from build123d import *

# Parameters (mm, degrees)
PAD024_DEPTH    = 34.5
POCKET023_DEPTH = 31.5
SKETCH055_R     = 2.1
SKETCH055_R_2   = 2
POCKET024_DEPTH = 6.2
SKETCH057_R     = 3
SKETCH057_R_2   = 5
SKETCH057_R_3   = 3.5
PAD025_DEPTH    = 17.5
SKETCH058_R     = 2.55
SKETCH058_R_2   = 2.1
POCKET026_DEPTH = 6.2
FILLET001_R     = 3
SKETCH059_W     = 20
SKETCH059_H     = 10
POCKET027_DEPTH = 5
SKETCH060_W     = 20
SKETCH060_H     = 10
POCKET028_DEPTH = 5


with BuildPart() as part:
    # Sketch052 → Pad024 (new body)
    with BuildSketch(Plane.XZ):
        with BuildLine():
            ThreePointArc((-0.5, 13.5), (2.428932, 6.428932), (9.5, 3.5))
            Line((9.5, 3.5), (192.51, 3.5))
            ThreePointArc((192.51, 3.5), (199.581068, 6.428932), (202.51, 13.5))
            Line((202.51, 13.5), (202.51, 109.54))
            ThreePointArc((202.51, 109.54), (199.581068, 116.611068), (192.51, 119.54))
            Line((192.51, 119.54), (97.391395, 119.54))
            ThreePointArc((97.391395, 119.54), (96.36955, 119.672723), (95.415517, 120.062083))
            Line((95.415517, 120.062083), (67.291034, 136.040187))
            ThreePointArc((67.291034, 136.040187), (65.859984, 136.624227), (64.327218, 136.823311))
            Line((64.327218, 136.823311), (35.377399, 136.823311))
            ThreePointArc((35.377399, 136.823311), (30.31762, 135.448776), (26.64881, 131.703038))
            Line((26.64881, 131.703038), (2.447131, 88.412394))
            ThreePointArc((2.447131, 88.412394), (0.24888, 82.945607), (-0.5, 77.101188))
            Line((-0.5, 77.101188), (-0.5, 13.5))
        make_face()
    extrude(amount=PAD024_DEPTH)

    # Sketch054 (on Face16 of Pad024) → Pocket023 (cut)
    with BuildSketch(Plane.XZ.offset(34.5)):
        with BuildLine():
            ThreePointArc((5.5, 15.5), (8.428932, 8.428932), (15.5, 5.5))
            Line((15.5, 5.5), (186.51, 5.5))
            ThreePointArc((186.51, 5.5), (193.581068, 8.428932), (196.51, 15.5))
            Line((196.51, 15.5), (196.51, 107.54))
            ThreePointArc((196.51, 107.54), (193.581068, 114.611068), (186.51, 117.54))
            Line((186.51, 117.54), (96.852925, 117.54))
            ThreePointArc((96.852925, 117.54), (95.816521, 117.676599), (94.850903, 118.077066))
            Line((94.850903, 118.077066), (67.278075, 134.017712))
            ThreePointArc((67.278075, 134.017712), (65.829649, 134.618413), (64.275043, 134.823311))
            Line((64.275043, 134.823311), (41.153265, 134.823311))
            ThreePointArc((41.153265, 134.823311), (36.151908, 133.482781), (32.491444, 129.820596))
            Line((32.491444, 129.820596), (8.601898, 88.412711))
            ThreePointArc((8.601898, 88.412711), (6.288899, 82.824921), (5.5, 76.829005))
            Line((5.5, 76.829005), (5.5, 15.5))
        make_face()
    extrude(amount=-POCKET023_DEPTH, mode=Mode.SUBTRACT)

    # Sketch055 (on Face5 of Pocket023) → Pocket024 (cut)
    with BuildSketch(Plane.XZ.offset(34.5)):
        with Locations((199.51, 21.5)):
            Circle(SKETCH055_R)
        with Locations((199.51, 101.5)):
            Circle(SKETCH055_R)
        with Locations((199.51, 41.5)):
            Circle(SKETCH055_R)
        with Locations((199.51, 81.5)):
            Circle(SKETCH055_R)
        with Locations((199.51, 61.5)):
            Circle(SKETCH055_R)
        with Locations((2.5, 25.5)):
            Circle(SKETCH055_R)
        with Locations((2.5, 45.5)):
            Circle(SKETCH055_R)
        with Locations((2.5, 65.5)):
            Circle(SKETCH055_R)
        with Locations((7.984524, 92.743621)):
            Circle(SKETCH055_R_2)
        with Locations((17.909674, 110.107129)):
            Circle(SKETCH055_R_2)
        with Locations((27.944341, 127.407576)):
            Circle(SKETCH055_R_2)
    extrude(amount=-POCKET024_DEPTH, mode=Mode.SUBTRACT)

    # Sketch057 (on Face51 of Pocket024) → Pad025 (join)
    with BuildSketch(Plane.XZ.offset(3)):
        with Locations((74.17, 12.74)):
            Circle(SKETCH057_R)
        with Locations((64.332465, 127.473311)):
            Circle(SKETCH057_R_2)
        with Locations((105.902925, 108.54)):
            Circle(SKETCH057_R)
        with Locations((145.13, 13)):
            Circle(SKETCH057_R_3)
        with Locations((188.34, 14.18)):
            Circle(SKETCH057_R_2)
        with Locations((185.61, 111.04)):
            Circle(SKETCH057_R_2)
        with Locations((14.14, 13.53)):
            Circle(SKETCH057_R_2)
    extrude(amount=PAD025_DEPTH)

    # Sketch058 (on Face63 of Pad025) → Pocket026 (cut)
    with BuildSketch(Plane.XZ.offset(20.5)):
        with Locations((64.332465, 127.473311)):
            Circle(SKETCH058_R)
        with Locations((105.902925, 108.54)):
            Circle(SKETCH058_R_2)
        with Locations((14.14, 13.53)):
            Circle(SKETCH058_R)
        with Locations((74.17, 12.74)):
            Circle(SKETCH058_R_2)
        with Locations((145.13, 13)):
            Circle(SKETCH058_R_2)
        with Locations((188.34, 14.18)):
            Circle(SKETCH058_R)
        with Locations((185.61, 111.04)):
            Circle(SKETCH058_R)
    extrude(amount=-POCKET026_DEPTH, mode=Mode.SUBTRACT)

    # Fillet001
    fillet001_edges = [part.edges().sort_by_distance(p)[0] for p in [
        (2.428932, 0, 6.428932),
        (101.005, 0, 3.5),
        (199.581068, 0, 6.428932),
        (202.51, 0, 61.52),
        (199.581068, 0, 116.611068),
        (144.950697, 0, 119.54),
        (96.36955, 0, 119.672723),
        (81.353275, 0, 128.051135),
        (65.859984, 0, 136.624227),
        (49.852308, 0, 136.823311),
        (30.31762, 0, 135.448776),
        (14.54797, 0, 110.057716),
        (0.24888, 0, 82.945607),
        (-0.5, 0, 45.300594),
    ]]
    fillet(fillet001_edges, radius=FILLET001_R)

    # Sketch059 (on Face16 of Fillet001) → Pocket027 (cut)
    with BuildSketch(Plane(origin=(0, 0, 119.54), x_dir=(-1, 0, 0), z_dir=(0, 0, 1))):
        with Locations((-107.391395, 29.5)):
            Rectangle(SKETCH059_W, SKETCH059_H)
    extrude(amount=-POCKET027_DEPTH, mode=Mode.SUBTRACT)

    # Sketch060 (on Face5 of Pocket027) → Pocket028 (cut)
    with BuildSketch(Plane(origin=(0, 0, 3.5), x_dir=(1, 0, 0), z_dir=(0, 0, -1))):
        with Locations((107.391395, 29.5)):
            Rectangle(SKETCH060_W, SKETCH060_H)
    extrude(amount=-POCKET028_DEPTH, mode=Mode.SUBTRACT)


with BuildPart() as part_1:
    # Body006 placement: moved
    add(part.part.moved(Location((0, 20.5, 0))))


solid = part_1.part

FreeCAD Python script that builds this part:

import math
import FreeCAD as App
import Part
import Sketcher


def edges_at(feature, points):
    """Names of the edges that pass closest to the given points."""
    edges = feature.Shape.Edges
    near = lambda p: min(range(len(edges)), key=lambda i: edges[i].distToShape(Part.Vertex(*p))[0])
    return sorted({f"Edge{near(p) + 1}" for p in points})


def add_polygon(sketch, points):
    """Adds a closed chain of lines whose ends are joined by coincident constraints."""
    first, n = sketch.GeometryCount, len(points)
    for a, b in zip(points, points[1:] + points[:1]):
        sketch.addGeometry(Part.LineSegment(App.Vector(*a, 0), App.Vector(*b, 0)), False)
    for i in range(n):
        sketch.addConstraint(Sketcher.Constraint("Coincident", first + i, 2, first + (i + 1) % n, 1))

doc = App.newDocument("Part")
body = doc.addObject("PartDesign::Body", "Body")

sketch1 = doc.addObject("Sketcher::SketchObject", "Sketch")
body.addObject(sketch1)
sketch1.AttachmentSupport = (doc.XZ_Plane, [""])
sketch1.MapMode = "FlatFace"
sketch1.addGeometry(Part.ArcOfCircle(Part.Circle(App.Vector(9.5, 13.5, 0), App.Vector(0, 0, 1), 10), math.radians(180), math.radians(270)), False)
sketch1.addGeometry(Part.LineSegment(App.Vector(9.5, 3.5, 0), App.Vector(192.5, 3.5, 0)), False)
sketch1.addGeometry(Part.ArcOfCircle(Part.Circle(App.Vector(192.5, 13.5, 0), App.Vector(0, 0, 1), 10), math.radians(-90), math.radians(0)), False)
sketch1.addGeometry(Part.LineSegment(App.Vector(202.5, 13.5, 0), App.Vector(202.5, 109.5, 0)), False)
sketch1.addGeometry(Part.ArcOfCircle(Part.Circle(App.Vector(192.5, 109.5, 0), App.Vector(0, 0, 1), 10), math.radians(0), math.radians(90)), False)
sketch1.addGeometry(Part.LineSegment(App.Vector(192.5, 119.5, 0), App.Vector(97.4, 119.5, 0)), False)
sketch1.addGeometry(Part.ArcOfCircle(Part.Circle(App.Vector(97.4, 123.5, 0), App.Vector(0, 0, 1), 4), math.radians(-120), math.radians(-90)), False)
sketch1.addGeometry(Part.LineSegment(App.Vector(95.4, 120.1, 0), App.Vector(67.3, 136, 0)), False)
sketch1.addGeometry(Part.ArcOfCircle(Part.Circle(App.Vector(64.3, 130.8, 0), App.Vector(0, 0, 1), 6), math.radians(60), math.radians(90)), False)
sketch1.addGeometry(Part.LineSegment(App.Vector(64.3, 136.8, 0), App.Vector(35.4, 136.8, 0)), False)
sketch1.addGeometry(Part.ArcOfCircle(Part.Circle(App.Vector(35.4, 126.8, 0), App.Vector(0, 0, 1), 10), math.radians(90), math.radians(151)), False)
sketch1.addGeometry(Part.LineSegment(App.Vector(26.6, 131.7, 0), App.Vector(2.4, 88.4, 0)), False)
sketch1.addGeometry(Part.ArcOfCircle(Part.Circle(App.Vector(22.7, 77.1, 0), App.Vector(0, 0, 1), 23.2), math.radians(151), math.radians(180)), False)
sketch1.addGeometry(Part.LineSegment(App.Vector(-0.5, 77.1, 0), App.Vector(-0.5, 13.5, 0)), False)
sketch1.addConstraint(Sketcher.Constraint("Tangent", 0, 2, 1, 1))
sketch1.addConstraint(Sketcher.Constraint("Tangent", 1, 2, 2, 1))
sketch1.addConstraint(Sketcher.Constraint("Tangent", 2, 2, 3, 1))
sketch1.addConstraint(Sketcher.Constraint("Tangent", 3, 2, 4, 1))
sketch1.addConstraint(Sketcher.Constraint("Tangent", 4, 2, 5, 1))
sketch1.addConstraint(Sketcher.Constraint("Tangent", 5, 2, 6, 2))
sketch1.addConstraint(Sketcher.Constraint("Tangent", 6, 1, 7, 1))
sketch1.addConstraint(Sketcher.Constraint("Tangent", 7, 2, 8, 1))
sketch1.addConstraint(Sketcher.Constraint("Tangent", 8, 2, 9, 1))
sketch1.addConstraint(Sketcher.Constraint("Tangent", 9, 2, 10, 1))
sketch1.addConstraint(Sketcher.Constraint("Tangent", 10, 2, 11, 1))
sketch1.addConstraint(Sketcher.Constraint("Tangent", 11, 2, 12, 1))
sketch1.addConstraint(Sketcher.Constraint("Tangent", 12, 2, 13, 1))
sketch1.addConstraint(Sketcher.Constraint("Tangent", 13, 2, 0, 1))
sketch1.addConstraint(Sketcher.Constraint("Horizontal", 1))
sketch1.addConstraint(Sketcher.Constraint("Vertical", 3))
sketch1.addConstraint(Sketcher.Constraint("Horizontal", 5))
sketch1.addConstraint(Sketcher.Constraint("Horizontal", 9))
sketch1.addConstraint(Sketcher.Constraint("Vertical", 13))
sketch1.addConstraint(Sketcher.Constraint("Equal", 0, 2))
sketch1.addConstraint(Sketcher.Constraint("Equal", 2, 4))
sketch1.addConstraint(Sketcher.Constraint("Radius", 0, 9.999999))
sketch1.addConstraint(Sketcher.Constraint("DistanceX", 1, 1, 1, 2, 183.01))
sketch1.addConstraint(Sketcher.Constraint("DistanceY", 3, 1, 3, 2, 96.04))
sketch1.addConstraint(Sketcher.Constraint("DistanceX", -1, 1, 0, 3, 9.499999))
sketch1.addConstraint(Sketcher.Constraint("DistanceY", -1, 1, 0, 3, 13.499999))
sketch1.addConstraint(Sketcher.Constraint("Radius", 6, 4.000006))
sketch1.addConstraint(Sketcher.Constraint("Radius", 8, 6.000005))
sketch1.addConstraint(Sketcher.Constraint("Radius", 10, 9.999997))
sketch1.addConstraint(Sketcher.Constraint("Radius", 12, 23.180004))
sketch1.addConstraint(Sketcher.Constraint("DistanceX", 10, 3, 6, 3, 62.013999))
sketch1.addConstraint(Sketcher.Constraint("DistanceX", 9, 2, 9, 1, 28.949819))
sketch1.addConstraint(Sketcher.Constraint("DistanceX", -1, 1, 9, 2, 35.377399))
sketch1.addConstraint(Sketcher.Constraint("DistanceY", 6, 3, 8, 3, 7.2833))
sketch1.addConstraint(Sketcher.Constraint("DistanceY", 13, 2, 13, 1, 63.601188))
pad1 = doc.addObject("PartDesign::Pad", "Pad")
body.addObject(pad1)
pad1.Profile = sketch1
pad1.Length = 34.5

sketch2 = doc.addObject("Sketcher::SketchObject", "Sketch001")
body.addObject(sketch2)
sketch2.AttachmentSupport = (doc.XZ_Plane, [""])
sketch2.MapMode = "FlatFace"
sketch2.AttachmentOffset = App.Placement(App.Vector(0, 0, 34.5), App.Rotation())
sketch2.addGeometry(Part.ArcOfCircle(Part.Circle(App.Vector(15.499999, 15.499999, 0), App.Vector(0, 0, 1), 9.999999), math.radians(179.999996), math.radians(270.000004)), False)
sketch2.addGeometry(Part.LineSegment(App.Vector(15.5, 5.5, 0), App.Vector(186.51, 5.5, 0)), False)
sketch2.addGeometry(Part.ArcOfCircle(Part.Circle(App.Vector(186.510001, 15.499999, 0), App.Vector(0, 0, 1), 9.999999), math.radians(-90.000004), math.radians(0.000004)), False)
sketch2.addGeometry(Part.LineSegment(App.Vector(196.51, 15.5, 0), App.Vector(196.51, 107.54, 0)), False)
sketch2.addGeometry(Part.ArcOfCircle(Part.Circle(App.Vector(186.510001, 107.540001, 0), App.Vector(0, 0, 1), 9.999999), math.radians(-0.000004), math.radians(90.000004)), False)
sketch2.addGeometry(Part.LineSegment(App.Vector(186.51, 117.54, 0), App.Vector(96.852925, 117.54, 0)), False)
sketch2.addGeometry(Part.ArcOfCircle(Part.Circle(App.Vector(96.852925, 121.540005, 0), App.Vector(0, 0, 1), 4.000005), math.radians(-120.033412), math.radians(-90.000006)), False)
sketch2.addGeometry(Part.LineSegment(App.Vector(94.850903, 118.077066, 0), App.Vector(67.278075, 134.017712, 0)), False)
sketch2.addGeometry(Part.ArcOfCircle(Part.Circle(App.Vector(64.275047, 128.823324, 0), App.Vector(0, 0, 1), 5.999987), math.radians(59.966534), math.radians(90.000038)), False)
sketch2.addGeometry(Part.LineSegment(App.Vector(64.275043, 134.823311, 0), App.Vector(41.153265, 134.823311, 0)), False)
sketch2.addGeometry(Part.ArcOfCircle(Part.Circle(App.Vector(41.153266, 124.823309, 0), App.Vector(0, 0, 1), 10.000002), math.radians(90.000008), math.radians(150.017952)), False)
sketch2.addGeometry(Part.LineSegment(App.Vector(32.491444, 129.820596, 0), App.Vector(8.601898, 88.412711, 0)), False)
sketch2.addGeometry(Part.ArcOfCircle(Part.Circle(App.Vector(28.68, 76.829006, 0), App.Vector(0, 0, 1), 23.18), math.radians(150.017966), math.radians(180.000003)), False)
sketch2.addGeometry(Part.LineSegment(App.Vector(5.5, 76.829005, 0), App.Vector(5.5, 15.5, 0)), False)
sketch2.addConstraint(Sketcher.Constraint("Coincident", 0, 2, 1, 1))
sketch2.addConstraint(Sketcher.Constraint("Coincident", 1, 2, 2, 1))
sketch2.addConstraint(Sketcher.Constraint("Coincident", 2, 2, 3, 1))
sketch2.addConstraint(Sketcher.Constraint("Coincident", 3, 2, 4, 1))
sketch2.addConstraint(Sketcher.Constraint("Coincident", 4, 2, 5, 1))
sketch2.addConstraint(Sketcher.Constraint("Coincident", 5, 2, 6, 2))
sketch2.addConstraint(Sketcher.Constraint("Coincident", 6, 1, 7, 1))
sketch2.addConstraint(Sketcher.Constraint("Coincident", 7, 2, 8, 1))
sketch2.addConstraint(Sketcher.Constraint("Coincident", 8, 2, 9, 1))
sketch2.addConstraint(Sketcher.Constraint("Coincident", 9, 2, 10, 1))
sketch2.addConstraint(Sketcher.Constraint("Coincident", 10, 2, 11, 1))
sketch2.addConstraint(Sketcher.Constraint("Coincident", 11, 2, 12, 1))
sketch2.addConstraint(Sketcher.Constraint("Coincident", 12, 2, 13, 1))
sketch2.addConstraint(Sketcher.Constraint("Coincident", 13, 2, 0, 1))
sketch2.addConstraint(Sketcher.Constraint("Horizontal", 1))
sketch2.addConstraint(Sketcher.Constraint("Vertical", 3))
sketch2.addConstraint(Sketcher.Constraint("Horizontal", 5))
sketch2.addConstraint(Sketcher.Constraint("Horizontal", 9))
sketch2.addConstraint(Sketcher.Constraint("Vertical", 13))
sketch2.addConstraint(Sketcher.Constraint("Radius", 0, 9.999999))
sketch2.addConstraint(Sketcher.Constraint("Radius", 2, 9.999999))
sketch2.addConstraint(Sketcher.Constraint("Radius", 4, 9.999999))
sketch2.addConstraint(Sketcher.Constraint("Radius", 12, 23.18))
sketch2.addConstraint(Sketcher.Constraint("DistanceX", 1, 2, 2, 2, 10.0))
sketch2.addConstraint(Sketcher.Constraint("DistanceY", 1, 2, 2, 2, 10.0))
sketch2.addConstraint(Sketcher.Constraint("DistanceX", 4, 2, 3, 2, 10.0))
sketch2.addConstraint(Sketcher.Constraint("DistanceY", 3, 2, 4, 2, 10.0))
sketch2.addConstraint(Sketcher.Constraint("DistanceX", 13, 2, 0, 2, 10.0))
sketch2.addConstraint(Sketcher.Constraint("DistanceY", 0, 2, 13, 2, 10.0))
sketch2.addConstraint(Sketcher.Constraint("DistanceX", 1, 1, 1, 2, 171.01))
sketch2.addConstraint(Sketcher.Constraint("DistanceY", 3, 1, 3, 2, 92.04))
sketch2.addConstraint(Sketcher.Constraint("DistanceX", -1, 1, 0, 3, 15.499999))
sketch2.addConstraint(Sketcher.Constraint("DistanceY", -1, 1, 0, 3, 15.499999))
sketch2.addConstraint(Sketcher.Constraint("Radius", 6, 4.000005))
sketch2.addConstraint(Sketcher.Constraint("Radius", 8, 5.999987))
sketch2.addConstraint(Sketcher.Constraint("Radius", 10, 10.000002))
sketch2.addConstraint(Sketcher.Constraint("DistanceY", 12, 3, 6, 3, 44.710999))
sketch2.addConstraint(Sketcher.Constraint("DistanceY", 7, 2, 8, 2, 0.805599))
sketch2.addConstraint(Sketcher.Constraint("DistanceX", 10, 2, 8, 2, 31.783599))
sketch2.addConstraint(Sketcher.Constraint("DistanceY", 11, 2, 9, 2, 46.4106))
sketch2.addConstraint(Sketcher.Constraint("DistanceX", 13, 2, 11, 2, 3.101898))
sketch2.addConstraint(Sketcher.Constraint("DistanceX", 5, 2, 5, 1, 89.657075))
sketch2.addConstraint(Sketcher.Constraint("DistanceX", 9, 2, 9, 1, 23.121778))
sketch2.addConstraint(Sketcher.Constraint("DistanceY", 13, 2, 13, 1, 61.329005))
sketch2.addConstraint(Sketcher.Constraint("DistanceX", 8, 3, 6, 3, 32.577878))
sketch2.addConstraint(Sketcher.Constraint("DistanceX", 10, 3, 8, 3, 23.121781))
sketch2.addConstraint(Sketcher.Constraint("DistanceX", 8, 3, 5, 2, 32.577878))
sketch2.addConstraint(Sketcher.Constraint("DistanceX", 6, 1, 5, 2, 2.002022))
sketch2.addConstraint(Sketcher.Constraint("DistanceX", 8, 2, 6, 1, 30.57586))
pocket1 = doc.addObject("PartDesign::Pocket", "Pocket")
body.addObject(pocket1)
pocket1.Profile = sketch2
pocket1.Length = 31.5

sketch3 = doc.addObject("Sketcher::SketchObject", "Sketch002")
body.addObject(sketch3)
sketch3.AttachmentSupport = (doc.XZ_Plane, [""])
sketch3.MapMode = "FlatFace"
sketch3.AttachmentOffset = App.Placement(App.Vector(0, 0, 34.5), App.Rotation())
sketch3.addGeometry(Part.Circle(App.Vector(199.5, 21.5, 0), App.Vector(0, 0, 1), 2.1), False)
sketch3.addGeometry(Part.Circle(App.Vector(199.5, 101.5, 0), App.Vector(0, 0, 1), 2.1), False)
sketch3.addGeometry(Part.Circle(App.Vector(199.5, 41.5, 0), App.Vector(0, 0, 1), 2.1), False)
sketch3.addGeometry(Part.Circle(App.Vector(199.5, 81.5, 0), App.Vector(0, 0, 1), 2.1), False)
sketch3.addGeometry(Part.Circle(App.Vector(199.5, 61.5, 0), App.Vector(0, 0, 1), 2.1), False)
sketch3.addGeometry(Part.Circle(App.Vector(2.5, 25.5, 0), App.Vector(0, 0, 1), 2.1), False)
sketch3.addGeometry(Part.Circle(App.Vector(2.5, 45.5, 0), App.Vector(0, 0, 1), 2.1), False)
sketch3.addGeometry(Part.Circle(App.Vector(2.5, 65.5, 0), App.Vector(0, 0, 1), 2.1), False)
sketch3.addGeometry(Part.Circle(App.Vector(8, 92.7, 0), App.Vector(0, 0, 1), 2), False)
sketch3.addGeometry(Part.Circle(App.Vector(17.9, 110.1, 0), App.Vector(0, 0, 1), 2), False)
sketch3.addGeometry(Part.Circle(App.Vector(27.9, 127.4, 0), App.Vector(0, 0, 1), 2), False)
sketch3.addConstraint(Sketcher.Constraint("Equal", 0, 1))
sketch3.addConstraint(Sketcher.Constraint("Equal", 1, 2))
sketch3.addConstraint(Sketcher.Constraint("Equal", 2, 3))
sketch3.addConstraint(Sketcher.Constraint("Equal", 3, 4))
sketch3.addConstraint(Sketcher.Constraint("Equal", 4, 5))
sketch3.addConstraint(Sketcher.Constraint("Equal", 5, 6))
sketch3.addConstraint(Sketcher.Constraint("Equal", 6, 7))
sketch3.addConstraint(Sketcher.Constraint("Equal", 8, 9))
sketch3.addConstraint(Sketcher.Constraint("Equal", 9, 10))
sketch3.addConstraint(Sketcher.Constraint("Vertical", 0, 3, 1, 3))
sketch3.addConstraint(Sketcher.Constraint("Vertical", 1, 3, 2, 3))
sketch3.addConstraint(Sketcher.Constraint("Vertical", 2, 3, 3, 3))
sketch3.addConstraint(Sketcher.Constraint("Vertical", 3, 3, 4, 3))
sketch3.addConstraint(Sketcher.Constraint("Vertical", 5, 3, 6, 3))
sketch3.addConstraint(Sketcher.Constraint("Vertical", 6, 3, 7, 3))
sketch3.addConstraint(Sketcher.Constraint("Diameter", 8, 4.0))
sketch3.addConstraint(Sketcher.Constraint("Diameter", 0, 4.2))
sketch3.addConstraint(Sketcher.Constraint("DistanceY", 0, 3, 1, 3, 80.0))
sketch3.addConstraint(Sketcher.Constraint("DistanceY", 0, 3, 2, 3, 20.0))
sketch3.addConstraint(Sketcher.Constraint("DistanceY", 3, 3, 1, 3, 20.0))
sketch3.addConstraint(Sketcher.Constraint("DistanceY", 2, 3, 4, 3, 20.0))
sketch3.addConstraint(Sketcher.Constraint("DistanceY", 0, 3, 5, 3, 4.0))
sketch3.addConstraint(Sketcher.Constraint("DistanceY", 5, 3, 6, 3, 20.0))
sketch3.addConstraint(Sketcher.Constraint("DistanceY", 6, 3, 7, 3, 20.0))
sketch3.addConstraint(Sketcher.Constraint("DistanceY", -1, 1, 0, 3, 21.5))
sketch3.addConstraint(Sketcher.Constraint("DistanceX", -1, 1, 5, 3, 2.5))
sketch3.addConstraint(Sketcher.Constraint("DistanceX", -1, 1, 0, 3, 199.51))
sketch3.addConstraint(Sketcher.Constraint("DistanceY", -1, 1, 8, 3, 92.743621))
sketch3.addConstraint(Sketcher.Constraint("DistanceY", -1, 1, 9, 3, 110.107129))
sketch3.addConstraint(Sketcher.Constraint("DistanceX", -1, 1, 10, 3, 27.944341))
sketch3.addConstraint(Sketcher.Constraint("DistanceX", 8, 3, 9, 3, 9.92515))
sketch3.addConstraint(Sketcher.Constraint("DistanceX", -1, 1, 8, 3, 7.984524))
sketch3.addConstraint(Sketcher.Constraint("DistanceY", -1, 1, 10, 3, 127.407576))
pocket2 = doc.addObject("PartDesign::Pocket", "Pocket001")
body.addObject(pocket2)
pocket2.Profile = sketch3
pocket2.Length = 6.2

sketch4 = doc.addObject("Sketcher::SketchObject", "Sketch003")
body.addObject(sketch4)
sketch4.AttachmentSupport = (doc.XZ_Plane, [""])
sketch4.MapMode = "FlatFace"
sketch4.AttachmentOffset = App.Placement(App.Vector(0, 0, 3), App.Rotation())
sketch4.addGeometry(Part.Circle(App.Vector(74.2, 12.7, 0), App.Vector(0, 0, 1), 3), False)
sketch4.addGeometry(Part.Circle(App.Vector(64.3, 127.5, 0), App.Vector(0, 0, 1), 5), False)
sketch4.addGeometry(Part.Circle(App.Vector(105.9, 108.5, 0), App.Vector(0, 0, 1), 3), False)
sketch4.addGeometry(Part.Circle(App.Vector(145.1, 13, 0), App.Vector(0, 0, 1), 3.5), False)
sketch4.addGeometry(Part.Circle(App.Vector(188.3, 14.2, 0), App.Vector(0, 0, 1), 5), False)
sketch4.addGeometry(Part.Circle(App.Vector(185.6, 111, 0), App.Vector(0, 0, 1), 5), False)
sketch4.addGeometry(Part.Circle(App.Vector(14.1, 13.5, 0), App.Vector(0, 0, 1), 5), False)
sketch4.addConstraint(Sketcher.Constraint("Equal", 0, 2))
sketch4.addConstraint(Sketcher.Constraint("Equal", 1, 4))
sketch4.addConstraint(Sketcher.Constraint("Equal", 4, 5))
sketch4.addConstraint(Sketcher.Constraint("Equal", 5, 6))
sketch4.addConstraint(Sketcher.Constraint("Diameter", 0, 6.0))
sketch4.addConstraint(Sketcher.Constraint("Diameter", 1, 10.0))
sketch4.addConstraint(Sketcher.Constraint("Diameter", 3, 7.0))
sketch4.addConstraint(Sketcher.Constraint("DistanceY", -1, 1, 3, 3, 13.0))
sketch4.addConstraint(Sketcher.Constraint("DistanceY", 0, 3, 2, 3, 95.8))
sketch4.addConstraint(Sketcher.Constraint("DistanceY", 2, 3, 5, 3, 2.5))
sketch4.addConstraint(Sketcher.Constraint("DistanceX", 6, 3, 4, 3, 174.2))
sketch4.addConstraint(Sketcher.Constraint("DistanceX", -1, 1, 0, 3, 74.17))
sketch4.addConstraint(Sketcher.Constraint("DistanceY", -1, 1, 0, 3, 12.74))
sketch4.addConstraint(Sketcher.Constraint("DistanceX", -1, 1, 3, 3, 145.13))
sketch4.addConstraint(Sketcher.Constraint("DistanceX", -1, 1, 4, 3, 188.34))
sketch4.addConstraint(Sketcher.Constraint("DistanceY", -1, 1, 4, 3, 14.18))
sketch4.addConstraint(Sketcher.Constraint("DistanceX", -1, 1, 5, 3, 185.61))
sketch4.addConstraint(Sketcher.Constraint("DistanceY", -1, 1, 6, 3, 13.53))
sketch4.addConstraint(Sketcher.Constraint("DistanceY", -1, 1, 1, 3, 127.473311))
sketch4.addConstraint(Sketcher.Constraint("DistanceX", 1, 3, 2, 3, 41.57046))
sketch4.addConstraint(Sketcher.Constraint("DistanceX", -1, 1, 1, 3, 64.332465))
pad2 = doc.addObject("PartDesign::Pad", "Pad001")
body.addObject(pad2)
pad2.Profile = sketch4
pad2.Length = 17.5

sketch5 = doc.addObject("Sketcher::SketchObject", "Sketch004")
body.addObject(sketch5)
sketch5.AttachmentSupport = (doc.XZ_Plane, [""])
sketch5.MapMode = "FlatFace"
sketch5.AttachmentOffset = App.Placement(App.Vector(0, 0, 20.5), App.Rotation())
sketch5.addGeometry(Part.Circle(App.Vector(64.3, 127.5, 0), App.Vector(0, 0, 1), 2.5), False)
sketch5.addGeometry(Part.Circle(App.Vector(105.9, 108.5, 0), App.Vector(0, 0, 1), 2.1), False)
sketch5.addGeometry(Part.Circle(App.Vector(14.1, 13.5, 0), App.Vector(0, 0, 1), 2.5), False)
sketch5.addGeometry(Part.Circle(App.Vector(74.2, 12.7, 0), App.Vector(0, 0, 1), 2.1), False)
sketch5.addGeometry(Part.Circle(App.Vector(145.1, 13, 0), App.Vector(0, 0, 1), 2.1), False)
sketch5.addGeometry(Part.Circle(App.Vector(188.3, 14.2, 0), App.Vector(0, 0, 1), 2.5), False)
sketch5.addGeometry(Part.Circle(App.Vector(185.6, 111, 0), App.Vector(0, 0, 1), 2.5), False)
sketch5.addConstraint(Sketcher.Constraint("Equal", 0, 2))
sketch5.addConstraint(Sketcher.Constraint("Equal", 1, 3))
sketch5.addConstraint(Sketcher.Constraint("Equal", 3, 4))
sketch5.addConstraint(Sketcher.Constraint("Equal", 2, 5))
sketch5.addConstraint(Sketcher.Constraint("Equal", 5, 6))
sketch5.addConstraint(Sketcher.Constraint("Diameter", 0, 5.1))
sketch5.addConstraint(Sketcher.Constraint("Diameter", 1, 4.2))
sketch5.addConstraint(Sketcher.Constraint("DistanceY", -1, 1, 4, 3, 13.0))
sketch5.addConstraint(Sketcher.Constraint("DistanceY", 3, 3, 1, 3, 95.8))
sketch5.addConstraint(Sketcher.Constraint("DistanceX", 2, 3, 5, 3, 174.2))
sketch5.addConstraint(Sketcher.Constraint("DistanceY", 1, 3, 6, 3, 2.5))
sketch5.addConstraint(Sketcher.Constraint("DistanceY", -1, 1, 1, 3, 108.54))
sketch5.addConstraint(Sketcher.Constraint("DistanceX", -1, 1, 2, 3, 14.14))
sketch5.addConstraint(Sketcher.Constraint("DistanceY", -1, 1, 2, 3, 13.53))
sketch5.addConstraint(Sketcher.Constraint("DistanceX", -1, 1, 3, 3, 74.17))
sketch5.addConstraint(Sketcher.Constraint("DistanceX", -1, 1, 4, 3, 145.13))
sketch5.addConstraint(Sketcher.Constraint("DistanceY", -1, 1, 5, 3, 14.18))
sketch5.addConstraint(Sketcher.Constraint("DistanceX", -1, 1, 6, 3, 185.61))
sketch5.addConstraint(Sketcher.Constraint("DistanceY", -1, 1, 0, 3, 127.473311))
sketch5.addConstraint(Sketcher.Constraint("DistanceX", 0, 3, 1, 3, 41.57046))
sketch5.addConstraint(Sketcher.Constraint("DistanceX", -1, 1, 0, 3, 64.332465))
pocket3 = doc.addObject("PartDesign::Pocket", "Pocket002")
body.addObject(pocket3)
pocket3.Profile = sketch5
pocket3.Length = 6.2
doc.recompute()

fillet = doc.addObject("PartDesign::Fillet", "Fillet")
body.addObject(fillet)
fillet.Base = (pocket3, edges_at(pocket3, [
    (2.429, 0, 6.429),
    (101.005, 0, 3.5),
    (199.581, 0, 6.429),
    (202.51, 0, 61.52),
    (199.581, 0, 116.611),
    (144.951, 0, 119.54),
    (96.37, 0, 119.673),
    (81.353, 0, 128.051),
    (65.86, 0, 136.624),
    (49.852, 0, 136.823),
    (30.318, 0, 135.449),
    (14.548, 0, 110.058),
    (0.249, 0, 82.946),
    (-0.5, 0, 45.301),
]))
fillet.Radius = 3

sketch6 = doc.addObject("Sketcher::SketchObject", "Sketch005")
body.addObject(sketch6)
sketch6.AttachmentSupport = (doc.XY_Plane, [""])
sketch6.MapMode = "FlatFace"
sketch6.AttachmentOffset = App.Placement(App.Vector(0, 0, 119.54), App.Rotation())
add_polygon(sketch6, [(117, -34), (117, -24), (97, -24), (97, -34)])
sketch6.addConstraint(Sketcher.Constraint("Vertical", 0))
sketch6.addConstraint(Sketcher.Constraint("Horizontal", 1))
sketch6.addConstraint(Sketcher.Constraint("Vertical", 2))
sketch6.addConstraint(Sketcher.Constraint("Horizontal", 3))
sketch6.addConstraint(Sketcher.Constraint("DistanceX", 1, 2, 1, 1, 20.0))
sketch6.addConstraint(Sketcher.Constraint("DistanceY", 0, 1, 0, 2, 10.0))
sketch6.addConstraint(Sketcher.Constraint("DistanceY", 0, 2, -1, 1, 24.5))
sketch6.addConstraint(Sketcher.Constraint("DistanceX", -1, 1, 0, 2, 117.391395))
pocket4 = doc.addObject("PartDesign::Pocket", "Pocket003")
body.addObject(pocket4)
pocket4.Profile = sketch6
pocket4.Length = 5

sketch7 = doc.addObject("Sketcher::SketchObject", "Sketch006")
body.addObject(sketch7)
sketch7.AttachmentSupport = (doc.XY_Plane, [""])
sketch7.MapMode = "FlatFace"
sketch7.AttachmentOffset = App.Placement(App.Vector(0, 0, 3.5), App.Rotation())
add_polygon(sketch7, [(97, -34), (97, -24), (117, -24), (117, -34)])
sketch7.addConstraint(Sketcher.Constraint("Vertical", 0))
sketch7.addConstraint(Sketcher.Constraint("Horizontal", 1))
sketch7.addConstraint(Sketcher.Constraint("Vertical", 2))
sketch7.addConstraint(Sketcher.Constraint("Horizontal", 3))
sketch7.addConstraint(Sketcher.Constraint("DistanceX", 1, 1, 1, 2, 20.0))
sketch7.addConstraint(Sketcher.Constraint("DistanceY", 0, 1, 0, 2, 10.0))
sketch7.addConstraint(Sketcher.Constraint("DistanceY", 0, 2, -1, 1, 24.5))
sketch7.addConstraint(Sketcher.Constraint("DistanceX", -1, 1, 0, 2, 97.391395))
pocket5 = doc.addObject("PartDesign::Pocket", "Pocket004")
body.addObject(pocket5)
pocket5.Profile = sketch7
pocket5.Length = 5
pocket5.Reversed = True
body2 = doc.addObject("PartDesign::Body", "Body001")
doc.recompute()

body.Placement = App.Placement(App.Vector(0, 20.5, 0), App.Rotation(App.Vector(0, 0, 1), 0))
boolean = doc.addObject("PartDesign::Boolean", "Boolean")
body2.addObject(boolean)
boolean.Type = "Fuse"
boolean.addObjects([body])

doc.recompute()
